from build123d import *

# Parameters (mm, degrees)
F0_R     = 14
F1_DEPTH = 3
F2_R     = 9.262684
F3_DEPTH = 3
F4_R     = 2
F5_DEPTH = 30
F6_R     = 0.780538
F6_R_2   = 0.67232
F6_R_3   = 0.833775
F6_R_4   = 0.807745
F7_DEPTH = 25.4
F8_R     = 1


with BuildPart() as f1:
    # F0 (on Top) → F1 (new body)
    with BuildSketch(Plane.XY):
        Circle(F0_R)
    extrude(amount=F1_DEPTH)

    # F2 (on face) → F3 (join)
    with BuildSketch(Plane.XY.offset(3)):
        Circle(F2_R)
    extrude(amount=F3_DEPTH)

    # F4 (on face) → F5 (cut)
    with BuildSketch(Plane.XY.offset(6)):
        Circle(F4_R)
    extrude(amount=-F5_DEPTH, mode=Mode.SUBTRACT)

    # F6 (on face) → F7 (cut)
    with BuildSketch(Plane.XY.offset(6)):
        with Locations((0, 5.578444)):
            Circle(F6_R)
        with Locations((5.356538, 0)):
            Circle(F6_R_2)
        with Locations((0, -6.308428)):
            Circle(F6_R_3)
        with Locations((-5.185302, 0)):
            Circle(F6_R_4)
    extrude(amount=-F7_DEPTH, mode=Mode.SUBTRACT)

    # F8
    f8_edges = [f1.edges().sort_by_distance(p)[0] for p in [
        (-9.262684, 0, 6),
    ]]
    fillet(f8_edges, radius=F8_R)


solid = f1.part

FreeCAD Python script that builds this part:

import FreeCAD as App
import Part
import Sketcher

V = App.Vector


def edges_at(feature, points):
    """Names of the edges that pass closest to the given points."""
    edges = feature.Shape.Edges
    near = lambda p: min(range(len(edges)), key=lambda i: edges[i].distToShape(Part.Vertex(*p))[0])
    return sorted({f"Edge{near(p) + 1}" for p in points})

doc = App.newDocument("Part")
body = doc.addObject("PartDesign::Body", "Body")

sketch1 = doc.addObject("Sketcher::SketchObject", "Sketch")
body.addObject(sketch1)
sketch1.AttachmentSupport = (doc.XY_Plane, [""])
sketch1.MapMode = "FlatFace"
sketch1.addGeometry(Part.Circle(V(0, 0, 0), V(0, 0, 1), 14), False)
sketch1.addConstraint([
    Sketcher.Constraint("Coincident", 0, 3, -1, 1),
    Sketcher.Constraint("Diameter", 0, 28.0),
])
pad1 = doc.addObject("PartDesign::Pad", "Pad")
body.addObject(pad1)
pad1.Profile = sketch1
pad1.Length = 3

sketch2 = doc.addObject("Sketcher::SketchObject", "Sketch001")
body.addObject(sketch2)
sketch2.AttachmentSupport = (doc.XY_Plane, [""])
sketch2.MapMode = "FlatFace"
sketch2.AttachmentOffset = App.Placement(V(0, 0, 3), App.Rotation())
sketch2.addGeometry(Part.Circle(V(0, 0, 0), V(0, 0, 1), 9.262684), False)
sketch2.addConstraint([
    Sketcher.Constraint("Coincident", 0, 3, -1, 1),
    Sketcher.Constraint("Diameter", 0, 18.525368),
])
pad2 = doc.addObject("PartDesign::Pad", "Pad001")
body.addObject(pad2)
pad2.Profile = sketch2
pad2.Length = 3

sketch3 = doc.addObject("Sketcher::SketchObject", "Sketch002")
body.addObject(sketch3)
sketch3.AttachmentSupport = (doc.XY_Plane, [""])
sketch3.MapMode = "FlatFace"
sketch3.AttachmentOffset = App.Placement(V(0, 0, 6), App.Rotation())
sketch3.addGeometry(Part.Circle(V(0, 0, 0), V(0, 0, 1), 2), False)
sketch3.addConstraint([
    Sketcher.Constraint("Coincident", 0, 3, -1, 1),
    Sketcher.Constraint("Diameter", 0, 4.0),
])
pocket1 = doc.addObject("PartDesign::Pocket", "Pocket")
body.addObject(pocket1)
pocket1.Profile = sketch3
pocket1.Length = 30

sketch4 = doc.addObject("Sketcher::SketchObject", "Sketch003")
body.addObject(sketch4)
sketch4.AttachmentSupport = (doc.XY_Plane, [""])
sketch4.MapMode = "FlatFace"
sketch4.AttachmentOffset = App.Placement(V(0, 0, 6), App.Rotation())
sketch4.addGeometry([
    Part.Circle(V(0, 5.578444, 0), V(0, 0, 1), 0.780538),
    Part.Circle(V(5.356538, 0, 0), V(0, 0, 1), 0.67232),
    Part.Circle(V(0, -6.308428, 0), V(0, 0, 1), 0.833775),
    Part.Circle(V(-5.185302, 0, 0), V(0, 0, 1), 0.807745),
], False)
sketch4.addConstraint([
    Sketcher.Constraint("PointOnObject", 0, 3, -2),
    Sketcher.Constraint("PointOnObject", 1, 3, -1),
    Sketcher.Constraint("PointOnObject", 2, 3, -2),
    Sketcher.Constraint("PointOnObject", 3, 3, -1),
    Sketcher.Constraint("Diameter", 1, 1.34464),
    Sketcher.Constraint("Diameter", 2, 1.66755),
    Sketcher.Constraint("Diameter", 3, 1.61549),
    Sketcher.Constraint("Diameter", 0, 1.561076),
    Sketcher.Constraint("DistanceX", 3, 3, 1, 3, 10.54184),
    Sketcher.Constraint("DistanceY", -1, 1, 0, 3, 5.578444),
    Sketcher.Constraint("DistanceX", -1, 1, 1, 3, 5.356538),
    Sketcher.Constraint("DistanceY", 2, 3, -1, 1, 6.308428),
])
pocket2 = doc.addObject("PartDesign::Pocket", "Pocket001")
body.addObject(pocket2)
pocket2.Profile = sketch4
pocket2.Length = 25.4
doc.recompute()

fillet = doc.addObject("PartDesign::Fillet", "Fillet")
body.addObject(fillet)
fillet.Base = (pocket2, edges_at(pocket2, [(-9.263, 0, 6)]))
fillet.Radius = 1

doc.recompute()
